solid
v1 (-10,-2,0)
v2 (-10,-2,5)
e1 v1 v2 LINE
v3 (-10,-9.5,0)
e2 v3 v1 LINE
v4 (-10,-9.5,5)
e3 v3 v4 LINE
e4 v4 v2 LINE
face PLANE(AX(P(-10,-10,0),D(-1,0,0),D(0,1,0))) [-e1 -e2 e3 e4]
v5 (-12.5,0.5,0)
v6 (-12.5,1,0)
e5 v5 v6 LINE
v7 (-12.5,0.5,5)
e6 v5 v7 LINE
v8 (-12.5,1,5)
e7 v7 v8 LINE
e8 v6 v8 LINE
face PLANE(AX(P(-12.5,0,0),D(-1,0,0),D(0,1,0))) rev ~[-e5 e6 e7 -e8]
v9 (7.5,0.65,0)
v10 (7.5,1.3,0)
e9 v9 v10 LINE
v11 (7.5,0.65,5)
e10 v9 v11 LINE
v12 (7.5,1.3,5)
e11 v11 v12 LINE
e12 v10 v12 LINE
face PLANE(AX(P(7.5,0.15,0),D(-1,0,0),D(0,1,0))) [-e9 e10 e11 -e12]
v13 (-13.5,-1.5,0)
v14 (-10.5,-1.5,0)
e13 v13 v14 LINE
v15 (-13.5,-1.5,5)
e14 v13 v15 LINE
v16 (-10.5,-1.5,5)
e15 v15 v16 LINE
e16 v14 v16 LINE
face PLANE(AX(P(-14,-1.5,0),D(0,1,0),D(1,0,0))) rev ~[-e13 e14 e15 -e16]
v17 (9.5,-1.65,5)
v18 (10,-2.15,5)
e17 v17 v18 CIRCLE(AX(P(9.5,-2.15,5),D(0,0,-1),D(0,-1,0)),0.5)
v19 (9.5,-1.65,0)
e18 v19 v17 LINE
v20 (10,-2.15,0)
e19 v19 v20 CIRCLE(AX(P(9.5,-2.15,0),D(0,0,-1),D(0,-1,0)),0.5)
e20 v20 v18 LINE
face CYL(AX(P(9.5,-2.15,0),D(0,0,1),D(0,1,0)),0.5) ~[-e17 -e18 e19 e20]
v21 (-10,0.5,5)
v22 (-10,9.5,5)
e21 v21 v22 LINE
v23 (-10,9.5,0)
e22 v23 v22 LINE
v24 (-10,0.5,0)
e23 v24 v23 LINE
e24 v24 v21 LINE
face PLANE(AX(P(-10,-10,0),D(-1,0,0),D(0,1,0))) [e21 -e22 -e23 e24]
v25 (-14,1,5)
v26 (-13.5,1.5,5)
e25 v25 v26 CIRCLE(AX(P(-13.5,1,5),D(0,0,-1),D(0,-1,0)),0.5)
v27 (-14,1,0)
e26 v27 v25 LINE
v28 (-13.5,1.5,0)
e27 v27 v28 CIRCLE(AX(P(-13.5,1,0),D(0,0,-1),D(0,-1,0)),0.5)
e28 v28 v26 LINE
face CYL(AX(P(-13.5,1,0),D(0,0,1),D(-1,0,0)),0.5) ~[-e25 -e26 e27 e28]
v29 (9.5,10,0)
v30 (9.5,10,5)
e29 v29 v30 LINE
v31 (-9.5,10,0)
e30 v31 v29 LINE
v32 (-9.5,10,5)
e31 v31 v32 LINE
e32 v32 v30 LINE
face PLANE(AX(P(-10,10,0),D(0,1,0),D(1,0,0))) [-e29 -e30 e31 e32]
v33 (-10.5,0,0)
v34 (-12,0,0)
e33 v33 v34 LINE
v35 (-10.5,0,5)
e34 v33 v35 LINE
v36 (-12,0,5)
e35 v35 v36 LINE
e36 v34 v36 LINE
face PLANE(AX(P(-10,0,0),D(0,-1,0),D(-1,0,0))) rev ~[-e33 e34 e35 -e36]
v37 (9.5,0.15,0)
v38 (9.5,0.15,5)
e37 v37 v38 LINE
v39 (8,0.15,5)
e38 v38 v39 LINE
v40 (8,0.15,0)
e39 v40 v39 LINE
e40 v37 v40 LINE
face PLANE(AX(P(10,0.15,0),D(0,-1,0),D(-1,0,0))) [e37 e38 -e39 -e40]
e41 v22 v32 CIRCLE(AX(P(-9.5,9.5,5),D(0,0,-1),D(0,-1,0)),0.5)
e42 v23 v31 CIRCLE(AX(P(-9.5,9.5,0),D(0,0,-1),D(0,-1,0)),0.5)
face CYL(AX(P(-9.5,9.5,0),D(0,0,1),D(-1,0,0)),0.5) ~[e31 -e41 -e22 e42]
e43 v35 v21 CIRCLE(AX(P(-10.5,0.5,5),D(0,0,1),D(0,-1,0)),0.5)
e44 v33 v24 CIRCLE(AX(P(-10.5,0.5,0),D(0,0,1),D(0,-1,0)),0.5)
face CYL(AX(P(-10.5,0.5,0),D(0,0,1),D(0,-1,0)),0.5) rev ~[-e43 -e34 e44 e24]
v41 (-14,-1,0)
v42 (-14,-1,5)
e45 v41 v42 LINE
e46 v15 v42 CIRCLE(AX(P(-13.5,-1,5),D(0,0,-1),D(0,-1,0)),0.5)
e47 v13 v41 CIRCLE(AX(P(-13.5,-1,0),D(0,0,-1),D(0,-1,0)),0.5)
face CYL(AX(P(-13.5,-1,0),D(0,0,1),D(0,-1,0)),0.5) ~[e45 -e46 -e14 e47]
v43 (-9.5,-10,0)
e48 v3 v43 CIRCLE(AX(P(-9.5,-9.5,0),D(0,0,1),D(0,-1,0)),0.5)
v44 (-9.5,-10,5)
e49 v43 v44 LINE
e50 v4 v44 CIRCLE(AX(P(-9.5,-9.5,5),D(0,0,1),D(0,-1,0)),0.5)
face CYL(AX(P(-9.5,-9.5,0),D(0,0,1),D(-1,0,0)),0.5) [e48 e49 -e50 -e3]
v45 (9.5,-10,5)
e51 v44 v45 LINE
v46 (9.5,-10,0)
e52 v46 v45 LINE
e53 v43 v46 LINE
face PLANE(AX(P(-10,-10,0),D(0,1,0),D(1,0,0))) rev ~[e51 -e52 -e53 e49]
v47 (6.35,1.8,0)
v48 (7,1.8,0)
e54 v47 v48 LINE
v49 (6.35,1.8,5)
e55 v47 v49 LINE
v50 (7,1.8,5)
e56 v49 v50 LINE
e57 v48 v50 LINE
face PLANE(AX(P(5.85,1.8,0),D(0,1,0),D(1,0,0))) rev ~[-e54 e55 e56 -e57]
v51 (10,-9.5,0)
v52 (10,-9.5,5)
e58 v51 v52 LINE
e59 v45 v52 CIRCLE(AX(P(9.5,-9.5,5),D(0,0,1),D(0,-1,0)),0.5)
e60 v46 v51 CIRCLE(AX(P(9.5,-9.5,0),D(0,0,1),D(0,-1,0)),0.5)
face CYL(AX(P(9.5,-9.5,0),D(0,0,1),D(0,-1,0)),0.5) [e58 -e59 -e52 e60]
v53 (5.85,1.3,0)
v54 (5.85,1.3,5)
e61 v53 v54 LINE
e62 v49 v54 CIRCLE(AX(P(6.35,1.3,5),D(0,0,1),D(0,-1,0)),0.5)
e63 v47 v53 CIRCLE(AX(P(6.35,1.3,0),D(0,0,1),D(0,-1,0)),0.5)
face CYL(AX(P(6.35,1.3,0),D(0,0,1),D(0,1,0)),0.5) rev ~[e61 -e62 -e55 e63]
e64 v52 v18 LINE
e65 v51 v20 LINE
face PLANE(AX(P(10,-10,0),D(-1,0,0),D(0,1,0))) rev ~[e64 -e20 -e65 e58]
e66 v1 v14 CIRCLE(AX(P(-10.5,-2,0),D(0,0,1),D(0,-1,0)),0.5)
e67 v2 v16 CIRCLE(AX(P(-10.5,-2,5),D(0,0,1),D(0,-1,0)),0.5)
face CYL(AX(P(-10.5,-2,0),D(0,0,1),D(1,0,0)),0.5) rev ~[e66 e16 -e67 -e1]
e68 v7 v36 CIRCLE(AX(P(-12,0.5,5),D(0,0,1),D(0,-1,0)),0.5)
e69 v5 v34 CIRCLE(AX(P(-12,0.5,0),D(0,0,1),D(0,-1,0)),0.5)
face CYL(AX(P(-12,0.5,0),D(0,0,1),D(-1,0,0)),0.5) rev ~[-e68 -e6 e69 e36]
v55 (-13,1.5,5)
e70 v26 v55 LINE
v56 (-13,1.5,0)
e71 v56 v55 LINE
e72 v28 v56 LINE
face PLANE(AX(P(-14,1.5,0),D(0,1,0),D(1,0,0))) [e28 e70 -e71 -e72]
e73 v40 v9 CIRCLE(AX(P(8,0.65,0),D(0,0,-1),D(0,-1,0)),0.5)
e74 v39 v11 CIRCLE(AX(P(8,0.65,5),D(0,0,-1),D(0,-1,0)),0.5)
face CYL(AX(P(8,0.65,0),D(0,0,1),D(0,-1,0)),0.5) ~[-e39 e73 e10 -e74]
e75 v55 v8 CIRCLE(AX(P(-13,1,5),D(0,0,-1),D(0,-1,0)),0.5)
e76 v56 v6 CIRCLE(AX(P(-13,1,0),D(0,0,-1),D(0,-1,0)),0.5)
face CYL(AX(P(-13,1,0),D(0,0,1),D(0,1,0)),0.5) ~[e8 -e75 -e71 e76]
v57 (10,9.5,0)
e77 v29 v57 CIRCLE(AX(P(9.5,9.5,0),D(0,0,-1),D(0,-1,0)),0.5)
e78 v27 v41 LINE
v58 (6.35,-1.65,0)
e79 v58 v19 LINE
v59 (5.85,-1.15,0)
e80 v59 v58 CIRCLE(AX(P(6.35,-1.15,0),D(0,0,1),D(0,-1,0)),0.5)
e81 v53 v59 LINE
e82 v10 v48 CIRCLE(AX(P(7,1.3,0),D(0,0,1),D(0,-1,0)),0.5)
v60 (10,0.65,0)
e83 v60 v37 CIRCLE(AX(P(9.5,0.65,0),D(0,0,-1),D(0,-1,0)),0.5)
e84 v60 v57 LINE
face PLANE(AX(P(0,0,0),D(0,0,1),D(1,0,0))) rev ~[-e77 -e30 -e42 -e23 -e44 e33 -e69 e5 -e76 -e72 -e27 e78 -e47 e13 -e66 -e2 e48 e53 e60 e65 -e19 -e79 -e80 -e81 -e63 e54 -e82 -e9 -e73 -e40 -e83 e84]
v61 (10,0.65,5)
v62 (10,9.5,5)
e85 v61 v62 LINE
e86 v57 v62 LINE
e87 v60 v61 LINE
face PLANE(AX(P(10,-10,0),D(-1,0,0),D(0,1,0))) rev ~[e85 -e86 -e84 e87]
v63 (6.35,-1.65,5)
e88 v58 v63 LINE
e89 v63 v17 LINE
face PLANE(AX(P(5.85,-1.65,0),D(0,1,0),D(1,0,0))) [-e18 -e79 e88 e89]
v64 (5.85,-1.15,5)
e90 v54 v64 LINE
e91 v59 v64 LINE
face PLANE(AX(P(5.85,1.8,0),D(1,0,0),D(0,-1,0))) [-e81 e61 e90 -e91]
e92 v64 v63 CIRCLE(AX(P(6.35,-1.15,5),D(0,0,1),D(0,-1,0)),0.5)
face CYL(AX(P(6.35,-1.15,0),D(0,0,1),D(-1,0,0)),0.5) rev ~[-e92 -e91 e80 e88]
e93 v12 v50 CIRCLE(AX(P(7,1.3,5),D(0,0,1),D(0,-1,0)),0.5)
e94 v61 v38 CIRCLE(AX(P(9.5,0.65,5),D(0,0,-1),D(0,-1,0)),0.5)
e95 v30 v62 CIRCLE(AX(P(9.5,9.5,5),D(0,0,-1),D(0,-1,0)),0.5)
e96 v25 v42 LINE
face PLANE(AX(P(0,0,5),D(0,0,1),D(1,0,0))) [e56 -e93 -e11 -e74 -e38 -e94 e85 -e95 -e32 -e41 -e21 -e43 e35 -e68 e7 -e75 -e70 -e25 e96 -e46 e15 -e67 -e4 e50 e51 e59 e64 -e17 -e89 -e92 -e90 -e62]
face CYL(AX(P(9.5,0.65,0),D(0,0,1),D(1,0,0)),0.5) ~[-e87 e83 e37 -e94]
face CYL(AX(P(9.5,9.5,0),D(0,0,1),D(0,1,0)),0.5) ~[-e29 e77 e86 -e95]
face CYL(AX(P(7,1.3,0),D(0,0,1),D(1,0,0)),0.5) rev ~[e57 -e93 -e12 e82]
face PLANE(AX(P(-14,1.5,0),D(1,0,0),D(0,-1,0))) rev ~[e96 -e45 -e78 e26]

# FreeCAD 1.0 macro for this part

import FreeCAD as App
import Part
import Sketcher

V = App.Vector


def edges_at(feature, points):
    """Names of the edges that pass closest to the given points."""
    edges = feature.Shape.Edges
    near = lambda p: min(range(len(edges)), key=lambda i: edges[i].distToShape(Part.Vertex(*p))[0])
    return sorted({f"Edge{near(p) + 1}" for p in points})

doc = App.newDocument("Part")
body = doc.addObject("PartDesign::Body", "Body")

# Sketch on XY plane
sketch1 = body.newObject("Sketcher::SketchObject", "Sketch")
sketch1.AttachmentSupport = (doc.getObject("XY_Plane"), [""])
sketch1.MapMode = "FlatFace"
sketch1.addGeometry([
    Part.LineSegment(V(-10, 10, 0), V(-10, -10, 0)),
    Part.LineSegment(V(-10, -10, 0), V(10, -10, 0)),
    Part.LineSegment(V(10, -10, 0), V(10, 10, 0)),
    Part.LineSegment(V(10, 10, 0), V(-10, 10, 0)),
], False)
sketch1.addConstraint([
    Sketcher.Constraint("Coincident", 0, 2, 1, 1),
    Sketcher.Constraint("Coincident", 1, 2, 2, 1),
    Sketcher.Constraint("Coincident", 2, 2, 3, 1),
    Sketcher.Constraint("Coincident", 3, 2, 0, 1),
    Sketcher.Constraint("Vertical", 0),
    Sketcher.Constraint("Horizontal", 1),
    Sketcher.Constraint("Vertical", 2),
    Sketcher.Constraint("Horizontal", 3),
    Sketcher.Constraint("Symmetric", 0, 2, 2, 2, -1, 1),
    Sketcher.Constraint("Equal", 3, 0),
    Sketcher.Constraint("DistanceX", 1, 1, 1, 2, 20.0),
])
pad1 = body.newObject("PartDesign::Pad", "Pad")
pad1.Profile = sketch1
pad1.Length = 5

# Sketch on XY plane
sketch2 = body.newObject("Sketcher::SketchObject", "Sketch001")
sketch2.AttachmentSupport = (doc.getObject("XY_Plane"), [""])
sketch2.MapMode = "FlatFace"
sketch2.addGeometry([
    Part.LineSegment(V(-10, -1.5, 0), V(-10, 0, 0)),  # 0
    Part.LineSegment(V(-10, 0, 0), V(-12.5, 0, 0)),  # 1
    Part.LineSegment(V(-12.5, 0, 0), V(-12.5, 1.5, 0)),  # 2
    Part.LineSegment(V(-12.5, 1.5, 0), V(-14, 1.5, 0)),  # 3
    Part.LineSegment(V(-14, 1.5, 0), V(-14, -1.5, 0)),  # 4
    Part.LineSegment(V(-14, -1.5, 0), V(-10, -1.5, 0)),  # 5
], False)
sketch2.addConstraint([
    Sketcher.Constraint("Coincident", 0, 2, 1, 1),
    Sketcher.Constraint("Coincident", 1, 2, 2, 1),
    Sketcher.Constraint("Coincident", 2, 2, 3, 1),
    Sketcher.Constraint("Coincident", 3, 2, 4, 1),
    Sketcher.Constraint("Coincident", 4, 2, 5, 1),
    Sketcher.Constraint("Coincident", 5, 2, 0, 1),
    Sketcher.Constraint("Vertical", 0),
    Sketcher.Constraint("Horizontal", 1),
    Sketcher.Constraint("Vertical", 2),
    Sketcher.Constraint("Horizontal", 3),
    Sketcher.Constraint("Vertical", 4),
    Sketcher.Constraint("Horizontal", 5),
    Sketcher.Constraint("PointOnObject", 0, 2, -1),
    Sketcher.Constraint("Equal", 3, 0),
    Sketcher.Constraint("Equal", 0, 2),
    Sketcher.Constraint("DistanceX", 5, 1, 5, 2, 4.0),
    Sketcher.Constraint("DistanceY", 4, 2, 4, 1, 3.0),
    Sketcher.Constraint("DistanceX", 0, 2, -1, 1, 10.0),
])
pad2 = body.newObject("PartDesign::Pad", "Pad001")
pad2.Profile = sketch2
pad2.Length = 5

# Sketch on XY plane
sketch3 = body.newObject("Sketcher::SketchObject", "Sketch002")
sketch3.AttachmentSupport = (doc.getObject("XY_Plane"), [""])
sketch3.MapMode = "FlatFace"
sketch3.addGeometry([
    Part.LineSegment(V(10, -1.6, 0), V(10, 0.1, 0)),  # 0
    Part.LineSegment(V(10, 0.1, 0), V(7.5, 0.1, 0)),  # 1
    Part.LineSegment(V(7.5, 0.1, 0), V(7.5, 1.8, 0)),  # 2
    Part.LineSegment(V(7.5, 1.8, 0), V(5.8, 1.8, 0)),  # 3
    Part.LineSegment(V(5.8, 1.8, 0), V(5.8, -1.6, 0)),  # 4
    Part.LineSegment(V(5.8, -1.6, 0), V(10, -1.6, 0)),  # 5
], False)
sketch3.addConstraint([
    Sketcher.Constraint("Coincident", 0, 2, 1, 1),
    Sketcher.Constraint("Coincident", 1, 2, 2, 1),
    Sketcher.Constraint("Coincident", 2, 2, 3, 1),
    Sketcher.Constraint("Coincident", 3, 2, 4, 1),
    Sketcher.Constraint("Coincident", 4, 2, 5, 1),
    Sketcher.Constraint("Coincident", 5, 2, 0, 1),
    Sketcher.Constraint("Vertical", 0),
    Sketcher.Constraint("Horizontal", 1),
    Sketcher.Constraint("Vertical", 2),
    Sketcher.Constraint("Horizontal", 3),
    Sketcher.Constraint("Vertical", 4),
    Sketcher.Constraint("Horizontal", 5),
    Sketcher.Constraint("Equal", 3, 2),
    Sketcher.Constraint("DistanceX", 1, 2, 1, 1, 2.5),
    Sketcher.Constraint("DistanceY", 0, 1, 0, 2, 1.8),
    Sketcher.Constraint("DistanceX", -1, 1, 0, 2, 10.0),
    Sketcher.Constraint("DistanceX", 3, 2, 3, 1, 1.65),
    Sketcher.Constraint("DistanceY", -1, 1, 2, 2, 1.8),
])
pocket1 = body.newObject("PartDesign::Pocket", "Pocket")
pocket1.Profile = sketch3
pocket1.Length = 5
pocket1.Reversed = True
doc.recompute()

fillet = body.newObject("PartDesign::Fillet", "Fillet")
fillet.Base = (pocket1, edges_at(pocket1, [
    (-14, -1.5, 2.5),
    (-14, 1.5, 2.5),
    (-12.5, 1.5, 2.5),
    (-10, 0, 2.5),
    (-12.5, 0, 2.5),
    (-10, -1.5, 2.5),
    (5.85, 1.8, 2.5),
    (7.5, 1.8, 2.5),
    (7.5, 0.15, 2.5),
    (10, 0.15, 2.5),
    (10, -1.65, 2.5),
    (5.85, -1.65, 2.5),
    (10, -10, 2.5),
    (10, 10, 2.5),
    (-10, 10, 2.5),
    (-10, -10, 2.5),
]))
fillet.Radius = 0.5

doc.recompute()
